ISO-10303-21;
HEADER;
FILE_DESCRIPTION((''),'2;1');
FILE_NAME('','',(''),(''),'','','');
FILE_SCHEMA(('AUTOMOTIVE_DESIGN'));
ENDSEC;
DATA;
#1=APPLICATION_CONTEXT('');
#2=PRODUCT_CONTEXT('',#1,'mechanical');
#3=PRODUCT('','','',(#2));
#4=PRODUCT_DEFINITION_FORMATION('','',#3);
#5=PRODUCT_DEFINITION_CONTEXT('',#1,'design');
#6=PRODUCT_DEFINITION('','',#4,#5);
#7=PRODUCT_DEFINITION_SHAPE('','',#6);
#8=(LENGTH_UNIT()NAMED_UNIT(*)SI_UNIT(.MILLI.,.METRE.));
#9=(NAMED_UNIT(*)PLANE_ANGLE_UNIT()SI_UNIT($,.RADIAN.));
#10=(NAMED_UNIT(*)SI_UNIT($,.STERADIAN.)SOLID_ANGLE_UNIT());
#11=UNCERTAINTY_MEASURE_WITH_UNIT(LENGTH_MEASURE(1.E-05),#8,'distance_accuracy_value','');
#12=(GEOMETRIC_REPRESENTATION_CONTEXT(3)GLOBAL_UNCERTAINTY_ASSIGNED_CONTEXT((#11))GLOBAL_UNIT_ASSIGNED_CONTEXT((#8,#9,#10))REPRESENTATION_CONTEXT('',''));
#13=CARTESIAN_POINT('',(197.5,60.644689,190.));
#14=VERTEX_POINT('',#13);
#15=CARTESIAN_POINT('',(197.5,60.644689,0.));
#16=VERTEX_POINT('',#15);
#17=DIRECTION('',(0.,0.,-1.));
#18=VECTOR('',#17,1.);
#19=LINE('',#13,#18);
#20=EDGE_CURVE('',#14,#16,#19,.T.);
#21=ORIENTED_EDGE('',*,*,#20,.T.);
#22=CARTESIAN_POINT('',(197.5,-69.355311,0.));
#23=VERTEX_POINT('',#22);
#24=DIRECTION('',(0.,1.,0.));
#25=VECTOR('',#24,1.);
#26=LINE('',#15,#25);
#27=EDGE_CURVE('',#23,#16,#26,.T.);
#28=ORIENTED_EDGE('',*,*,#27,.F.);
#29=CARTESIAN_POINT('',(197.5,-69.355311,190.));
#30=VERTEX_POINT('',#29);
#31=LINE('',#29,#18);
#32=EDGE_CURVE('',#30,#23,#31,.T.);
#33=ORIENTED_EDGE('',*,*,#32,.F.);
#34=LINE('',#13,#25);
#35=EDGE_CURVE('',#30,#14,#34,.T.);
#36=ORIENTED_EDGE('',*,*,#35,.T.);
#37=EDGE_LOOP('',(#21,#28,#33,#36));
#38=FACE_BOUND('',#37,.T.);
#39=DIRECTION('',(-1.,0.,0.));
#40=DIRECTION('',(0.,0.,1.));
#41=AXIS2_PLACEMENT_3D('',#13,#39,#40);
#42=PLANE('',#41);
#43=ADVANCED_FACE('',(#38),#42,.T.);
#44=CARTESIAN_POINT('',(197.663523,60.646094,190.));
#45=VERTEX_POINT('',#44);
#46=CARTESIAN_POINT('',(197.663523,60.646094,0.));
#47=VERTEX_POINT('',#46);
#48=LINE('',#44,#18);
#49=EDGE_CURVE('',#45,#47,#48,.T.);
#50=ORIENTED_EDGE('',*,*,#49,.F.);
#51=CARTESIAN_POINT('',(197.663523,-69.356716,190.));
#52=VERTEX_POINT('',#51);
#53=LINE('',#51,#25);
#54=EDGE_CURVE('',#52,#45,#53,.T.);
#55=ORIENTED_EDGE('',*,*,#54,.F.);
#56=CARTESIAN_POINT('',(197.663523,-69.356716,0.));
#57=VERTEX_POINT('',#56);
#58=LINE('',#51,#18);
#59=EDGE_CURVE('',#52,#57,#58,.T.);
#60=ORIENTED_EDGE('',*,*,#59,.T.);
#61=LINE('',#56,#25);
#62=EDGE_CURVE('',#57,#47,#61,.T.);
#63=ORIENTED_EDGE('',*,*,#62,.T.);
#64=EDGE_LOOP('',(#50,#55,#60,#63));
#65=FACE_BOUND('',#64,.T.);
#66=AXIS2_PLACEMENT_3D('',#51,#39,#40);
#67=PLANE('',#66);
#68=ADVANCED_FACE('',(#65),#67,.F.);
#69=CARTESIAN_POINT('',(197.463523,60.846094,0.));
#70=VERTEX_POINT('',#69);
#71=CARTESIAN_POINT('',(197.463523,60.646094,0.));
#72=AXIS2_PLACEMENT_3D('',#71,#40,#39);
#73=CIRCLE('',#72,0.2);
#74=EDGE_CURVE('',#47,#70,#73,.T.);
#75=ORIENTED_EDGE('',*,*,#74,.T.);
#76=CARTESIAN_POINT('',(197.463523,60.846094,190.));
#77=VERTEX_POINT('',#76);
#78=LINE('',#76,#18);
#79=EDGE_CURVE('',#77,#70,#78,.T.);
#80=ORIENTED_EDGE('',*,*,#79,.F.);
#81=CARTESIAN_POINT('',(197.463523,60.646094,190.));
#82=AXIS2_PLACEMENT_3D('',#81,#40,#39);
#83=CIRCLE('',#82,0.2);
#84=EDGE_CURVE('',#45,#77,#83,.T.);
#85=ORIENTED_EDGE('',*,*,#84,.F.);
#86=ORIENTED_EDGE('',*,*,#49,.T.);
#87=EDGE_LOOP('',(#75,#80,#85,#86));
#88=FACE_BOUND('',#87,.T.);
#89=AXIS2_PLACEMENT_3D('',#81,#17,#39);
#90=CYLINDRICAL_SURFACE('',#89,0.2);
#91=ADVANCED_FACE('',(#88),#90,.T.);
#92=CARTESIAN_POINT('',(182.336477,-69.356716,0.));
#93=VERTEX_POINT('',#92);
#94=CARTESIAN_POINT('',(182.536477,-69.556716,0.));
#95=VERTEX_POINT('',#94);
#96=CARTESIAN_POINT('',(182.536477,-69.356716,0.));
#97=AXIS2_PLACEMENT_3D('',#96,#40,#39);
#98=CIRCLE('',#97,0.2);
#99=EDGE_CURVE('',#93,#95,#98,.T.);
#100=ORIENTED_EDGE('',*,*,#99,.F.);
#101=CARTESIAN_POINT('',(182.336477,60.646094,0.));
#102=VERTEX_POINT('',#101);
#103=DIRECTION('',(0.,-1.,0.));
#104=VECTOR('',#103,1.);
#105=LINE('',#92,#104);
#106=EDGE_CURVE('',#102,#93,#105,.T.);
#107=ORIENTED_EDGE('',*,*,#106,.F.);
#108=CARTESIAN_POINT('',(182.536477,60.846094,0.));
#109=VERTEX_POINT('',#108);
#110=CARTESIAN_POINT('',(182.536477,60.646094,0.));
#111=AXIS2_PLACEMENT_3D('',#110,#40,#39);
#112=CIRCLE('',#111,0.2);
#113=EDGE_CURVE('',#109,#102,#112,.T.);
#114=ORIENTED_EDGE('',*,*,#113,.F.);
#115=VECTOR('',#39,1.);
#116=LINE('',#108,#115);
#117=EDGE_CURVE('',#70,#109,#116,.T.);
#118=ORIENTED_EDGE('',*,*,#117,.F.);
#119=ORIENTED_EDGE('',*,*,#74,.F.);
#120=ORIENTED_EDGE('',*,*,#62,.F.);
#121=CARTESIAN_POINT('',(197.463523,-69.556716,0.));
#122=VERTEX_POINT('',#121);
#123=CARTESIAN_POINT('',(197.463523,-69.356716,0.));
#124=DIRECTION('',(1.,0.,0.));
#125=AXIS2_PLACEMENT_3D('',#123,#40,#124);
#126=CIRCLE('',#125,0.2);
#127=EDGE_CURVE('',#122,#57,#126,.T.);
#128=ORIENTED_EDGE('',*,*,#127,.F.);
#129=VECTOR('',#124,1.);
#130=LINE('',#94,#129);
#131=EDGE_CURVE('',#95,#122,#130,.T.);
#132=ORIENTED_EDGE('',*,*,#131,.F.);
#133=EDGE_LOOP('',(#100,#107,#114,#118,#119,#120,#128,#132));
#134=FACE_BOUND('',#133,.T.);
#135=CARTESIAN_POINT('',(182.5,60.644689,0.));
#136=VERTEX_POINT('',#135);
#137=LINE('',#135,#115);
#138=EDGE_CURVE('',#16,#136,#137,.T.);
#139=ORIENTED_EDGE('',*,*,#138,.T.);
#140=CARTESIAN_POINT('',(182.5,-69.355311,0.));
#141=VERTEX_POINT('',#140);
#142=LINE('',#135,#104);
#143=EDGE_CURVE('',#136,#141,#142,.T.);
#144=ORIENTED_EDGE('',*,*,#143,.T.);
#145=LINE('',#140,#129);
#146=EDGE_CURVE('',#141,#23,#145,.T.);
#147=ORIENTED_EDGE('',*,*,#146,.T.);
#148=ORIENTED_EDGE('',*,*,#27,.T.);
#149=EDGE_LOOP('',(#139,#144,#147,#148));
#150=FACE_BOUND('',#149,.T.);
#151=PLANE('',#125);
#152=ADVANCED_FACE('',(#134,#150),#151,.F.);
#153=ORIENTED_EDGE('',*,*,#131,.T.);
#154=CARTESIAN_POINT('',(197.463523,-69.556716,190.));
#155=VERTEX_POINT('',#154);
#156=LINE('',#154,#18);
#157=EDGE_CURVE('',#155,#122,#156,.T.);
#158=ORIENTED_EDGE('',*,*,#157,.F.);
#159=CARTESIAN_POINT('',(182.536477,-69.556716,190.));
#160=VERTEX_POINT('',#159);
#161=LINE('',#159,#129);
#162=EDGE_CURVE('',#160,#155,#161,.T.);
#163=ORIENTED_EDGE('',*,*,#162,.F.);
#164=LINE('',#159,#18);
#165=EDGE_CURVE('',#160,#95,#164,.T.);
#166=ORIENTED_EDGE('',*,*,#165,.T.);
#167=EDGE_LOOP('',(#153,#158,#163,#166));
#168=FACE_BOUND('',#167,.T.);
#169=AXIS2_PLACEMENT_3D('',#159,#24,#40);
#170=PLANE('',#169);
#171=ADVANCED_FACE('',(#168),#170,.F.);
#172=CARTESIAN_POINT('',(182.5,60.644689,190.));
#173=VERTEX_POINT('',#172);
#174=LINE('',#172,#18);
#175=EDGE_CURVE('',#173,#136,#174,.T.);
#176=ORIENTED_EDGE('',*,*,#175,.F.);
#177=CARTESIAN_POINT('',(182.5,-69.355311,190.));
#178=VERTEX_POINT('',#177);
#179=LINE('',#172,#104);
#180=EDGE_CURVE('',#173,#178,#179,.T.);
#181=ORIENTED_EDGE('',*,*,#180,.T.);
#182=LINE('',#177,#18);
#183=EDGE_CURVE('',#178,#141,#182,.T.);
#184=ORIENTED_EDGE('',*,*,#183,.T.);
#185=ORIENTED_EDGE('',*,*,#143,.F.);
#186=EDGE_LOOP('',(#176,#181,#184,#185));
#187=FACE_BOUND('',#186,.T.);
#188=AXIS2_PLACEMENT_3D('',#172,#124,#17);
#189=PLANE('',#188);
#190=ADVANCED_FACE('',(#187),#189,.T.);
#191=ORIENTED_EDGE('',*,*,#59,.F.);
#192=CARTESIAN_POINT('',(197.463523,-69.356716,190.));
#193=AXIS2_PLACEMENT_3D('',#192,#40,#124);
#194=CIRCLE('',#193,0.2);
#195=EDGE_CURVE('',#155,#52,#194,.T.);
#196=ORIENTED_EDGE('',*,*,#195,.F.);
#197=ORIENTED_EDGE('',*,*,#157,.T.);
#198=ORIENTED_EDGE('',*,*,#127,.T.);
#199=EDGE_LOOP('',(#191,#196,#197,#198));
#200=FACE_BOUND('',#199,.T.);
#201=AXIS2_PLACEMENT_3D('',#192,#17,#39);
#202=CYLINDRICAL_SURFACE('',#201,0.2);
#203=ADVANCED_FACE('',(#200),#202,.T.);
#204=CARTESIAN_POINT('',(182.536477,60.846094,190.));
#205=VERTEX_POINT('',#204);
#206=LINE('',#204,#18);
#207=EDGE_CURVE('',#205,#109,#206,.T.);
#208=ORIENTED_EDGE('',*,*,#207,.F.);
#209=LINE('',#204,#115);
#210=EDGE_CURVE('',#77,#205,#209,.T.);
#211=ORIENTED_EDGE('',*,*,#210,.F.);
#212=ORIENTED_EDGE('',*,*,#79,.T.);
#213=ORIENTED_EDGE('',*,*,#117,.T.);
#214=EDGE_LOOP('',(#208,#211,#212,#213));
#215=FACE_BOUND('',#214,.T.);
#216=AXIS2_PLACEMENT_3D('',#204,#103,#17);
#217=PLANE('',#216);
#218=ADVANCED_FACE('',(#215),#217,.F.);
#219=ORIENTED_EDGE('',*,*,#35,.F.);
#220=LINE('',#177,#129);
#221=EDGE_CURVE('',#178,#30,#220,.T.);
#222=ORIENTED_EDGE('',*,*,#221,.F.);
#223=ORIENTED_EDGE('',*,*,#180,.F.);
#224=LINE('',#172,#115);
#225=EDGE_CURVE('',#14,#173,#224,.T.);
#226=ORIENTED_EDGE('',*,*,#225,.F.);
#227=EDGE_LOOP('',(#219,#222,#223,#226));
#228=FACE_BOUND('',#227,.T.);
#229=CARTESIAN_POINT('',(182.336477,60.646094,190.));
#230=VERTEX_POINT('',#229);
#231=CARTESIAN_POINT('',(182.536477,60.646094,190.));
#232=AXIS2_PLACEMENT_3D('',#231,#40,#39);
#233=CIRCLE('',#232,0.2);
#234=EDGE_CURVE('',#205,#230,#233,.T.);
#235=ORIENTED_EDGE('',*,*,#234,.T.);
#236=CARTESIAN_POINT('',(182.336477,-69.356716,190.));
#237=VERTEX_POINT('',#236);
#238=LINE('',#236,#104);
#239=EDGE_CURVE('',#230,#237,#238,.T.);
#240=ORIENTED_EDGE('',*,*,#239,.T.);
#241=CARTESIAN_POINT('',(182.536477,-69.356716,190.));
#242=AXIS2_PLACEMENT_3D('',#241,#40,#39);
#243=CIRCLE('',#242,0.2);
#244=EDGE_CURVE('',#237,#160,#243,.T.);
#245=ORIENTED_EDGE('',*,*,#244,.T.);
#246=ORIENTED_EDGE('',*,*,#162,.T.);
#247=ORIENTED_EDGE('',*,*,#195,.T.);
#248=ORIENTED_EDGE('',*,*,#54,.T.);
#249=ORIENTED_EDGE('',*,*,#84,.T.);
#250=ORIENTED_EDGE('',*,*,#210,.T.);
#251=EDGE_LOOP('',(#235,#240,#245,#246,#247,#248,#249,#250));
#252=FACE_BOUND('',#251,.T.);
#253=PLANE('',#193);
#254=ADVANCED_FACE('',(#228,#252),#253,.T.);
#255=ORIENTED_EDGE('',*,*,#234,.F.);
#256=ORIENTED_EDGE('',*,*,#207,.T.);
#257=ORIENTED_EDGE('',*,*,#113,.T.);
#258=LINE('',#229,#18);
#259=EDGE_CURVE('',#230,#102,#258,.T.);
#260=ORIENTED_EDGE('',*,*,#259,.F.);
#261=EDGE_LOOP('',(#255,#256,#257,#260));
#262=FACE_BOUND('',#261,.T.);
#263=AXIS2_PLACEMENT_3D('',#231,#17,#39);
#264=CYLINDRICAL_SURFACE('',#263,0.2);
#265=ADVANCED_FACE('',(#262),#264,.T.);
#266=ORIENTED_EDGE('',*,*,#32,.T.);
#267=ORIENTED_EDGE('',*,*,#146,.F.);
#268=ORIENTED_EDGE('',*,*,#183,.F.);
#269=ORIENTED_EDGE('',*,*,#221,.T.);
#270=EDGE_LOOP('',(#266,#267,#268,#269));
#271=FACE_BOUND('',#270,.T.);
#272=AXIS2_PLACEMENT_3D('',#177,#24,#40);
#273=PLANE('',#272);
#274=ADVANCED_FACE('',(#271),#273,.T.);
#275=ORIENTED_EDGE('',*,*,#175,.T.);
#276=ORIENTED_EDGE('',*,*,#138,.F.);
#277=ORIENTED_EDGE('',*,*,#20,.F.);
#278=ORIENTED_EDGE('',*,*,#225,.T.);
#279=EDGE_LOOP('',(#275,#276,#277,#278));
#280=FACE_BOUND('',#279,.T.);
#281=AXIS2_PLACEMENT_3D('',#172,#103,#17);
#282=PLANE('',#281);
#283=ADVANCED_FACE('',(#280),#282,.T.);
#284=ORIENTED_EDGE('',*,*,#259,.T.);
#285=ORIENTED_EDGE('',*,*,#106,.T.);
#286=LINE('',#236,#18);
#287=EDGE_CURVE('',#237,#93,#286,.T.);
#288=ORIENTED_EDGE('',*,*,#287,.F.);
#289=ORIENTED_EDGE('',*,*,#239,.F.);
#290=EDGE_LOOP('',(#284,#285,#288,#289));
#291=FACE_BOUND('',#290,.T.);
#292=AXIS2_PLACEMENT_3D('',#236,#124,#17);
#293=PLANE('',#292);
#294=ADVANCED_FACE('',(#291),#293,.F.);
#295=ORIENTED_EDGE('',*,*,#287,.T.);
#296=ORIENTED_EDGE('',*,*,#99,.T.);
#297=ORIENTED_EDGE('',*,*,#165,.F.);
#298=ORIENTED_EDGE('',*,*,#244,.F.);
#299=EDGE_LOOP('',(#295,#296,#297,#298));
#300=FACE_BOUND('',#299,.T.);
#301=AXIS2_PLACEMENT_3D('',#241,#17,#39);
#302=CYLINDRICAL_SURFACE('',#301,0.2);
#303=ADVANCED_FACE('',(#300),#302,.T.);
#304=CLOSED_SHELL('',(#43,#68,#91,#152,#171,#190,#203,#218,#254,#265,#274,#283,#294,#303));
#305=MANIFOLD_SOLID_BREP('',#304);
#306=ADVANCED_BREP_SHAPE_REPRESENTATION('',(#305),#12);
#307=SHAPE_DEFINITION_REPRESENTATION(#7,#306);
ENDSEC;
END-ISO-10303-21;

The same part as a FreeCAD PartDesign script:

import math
import FreeCAD as App
import Part
import Sketcher

V = App.Vector


def add_polygon(sketch, points):
    """Adds a closed chain of lines whose ends are joined by coincident constraints."""
    first, n = sketch.GeometryCount, len(points)
    for a, b in zip(points, points[1:] + points[:1]):
        sketch.addGeometry(Part.LineSegment(App.Vector(*a, 0), App.Vector(*b, 0)), False)
    for i in range(n):
        sketch.addConstraint(Sketcher.Constraint("Coincident", first + i, 2, first + (i + 1) % n, 1))

doc = App.newDocument("Part")
body = doc.addObject("PartDesign::Body", "Body")

# Sketch on XY plane
sketch1 = doc.addObject("Sketcher::SketchObject", "Sketch")
body.addObject(sketch1)
sketch1.AttachmentSupport = (doc.XY_Plane, [""])
sketch1.MapMode = "FlatFace"
sketch1.addGeometry(Part.LineSegment(V(182.536477, -69.556716, 0), V(197.463523, -69.556716, 0)), False)  # 0
sketch1.addGeometry(Part.ArcOfCircle(Part.Circle(V(197.463523, -69.356716, 0), V(0, 0, 1), 0.2), math.radians(-90), math.radians(0)), False)  # 1
sketch1.addGeometry(Part.LineSegment(V(197.663523, -69.356716, 0), V(197.663523, 60.646094, 0)), False)  # 2
sketch1.addGeometry(Part.ArcOfCircle(Part.Circle(V(197.463523, 60.646094, 0), V(0, 0, 1), 0.2), math.radians(0), math.radians(90)), False)  # 3
sketch1.addGeometry(Part.LineSegment(V(197.463523, 60.846094, 0), V(182.536477, 60.846094, 0)), False)  # 4
sketch1.addGeometry(Part.ArcOfCircle(Part.Circle(V(182.536477, 60.646094, 0), V(0, 0, 1), 0.2), math.radians(90), math.radians(180)), False)  # 5
sketch1.addGeometry(Part.LineSegment(V(182.336477, 60.646094, 0), V(182.336477, -69.356716, 0)), False)  # 6
sketch1.addGeometry(Part.ArcOfCircle(Part.Circle(V(182.536477, -69.356716, 0), V(0, 0, 1), 0.2), math.radians(-180), math.radians(-90)), False)  # 7
add_polygon(sketch1, [(197.5, -69.355311), (182.5, -69.355311), (182.5, 60.644689), (197.5, 60.644689)])  # lines 8-11
sketch1.addConstraint(Sketcher.Constraint("Tangent", 0, 2, 1, 1))
sketch1.addConstraint(Sketcher.Constraint("Tangent", 1, 2, 2, 1))
sketch1.addConstraint(Sketcher.Constraint("Tangent", 2, 2, 3, 1))
sketch1.addConstraint(Sketcher.Constraint("Tangent", 3, 2, 4, 1))
sketch1.addConstraint(Sketcher.Constraint("Tangent", 4, 2, 5, 1))
sketch1.addConstraint(Sketcher.Constraint("Tangent", 5, 2, 6, 1))
sketch1.addConstraint(Sketcher.Constraint("Tangent", 6, 2, 7, 1))
sketch1.addConstraint(Sketcher.Constraint("Tangent", 7, 2, 0, 1))
sketch1.addConstraint(Sketcher.Constraint("Horizontal", 0))
sketch1.addConstraint(Sketcher.Constraint("Vertical", 2))
sketch1.addConstraint(Sketcher.Constraint("Horizontal", 4))
sketch1.addConstraint(Sketcher.Constraint("Vertical", 6))
sketch1.addConstraint(Sketcher.Constraint("Horizontal", 8))
sketch1.addConstraint(Sketcher.Constraint("Vertical", 9))
sketch1.addConstraint(Sketcher.Constraint("Horizontal", 10))
sketch1.addConstraint(Sketcher.Constraint("Vertical", 11))
sketch1.addConstraint(Sketcher.Constraint("Equal", 1, 3))
sketch1.addConstraint(Sketcher.Constraint("Equal", 3, 5))
sketch1.addConstraint(Sketcher.Constraint("Equal", 5, 7))
sketch1.addConstraint(Sketcher.Constraint("Radius", 1, 0.2))
sketch1.addConstraint(Sketcher.Constraint("DistanceX", 8, 2, 8, 1, 15.0))
sketch1.addConstraint(Sketcher.Constraint("DistanceY", 9, 1, 9, 2, 130.0))
sketch1.addConstraint(Sketcher.Constraint("DistanceX", -1, 1, 8, 2, 182.5))
sketch1.addConstraint(Sketcher.Constraint("DistanceY", 2, 1, 2, 2, 130.00281))
sketch1.addConstraint(Sketcher.Constraint("DistanceX", 0, 1, 0, 2, 14.927046))
sketch1.addConstraint(Sketcher.Constraint("DistanceY", 8, 2, -1, 1, 69.355311))
sketch1.addConstraint(Sketcher.Constraint("DistanceX", -1, 1, 1, 3, 197.463523))
sketch1.addConstraint(Sketcher.Constraint("DistanceY", 1, 3, -1, 1, 69.356716))
pad1 = doc.addObject("PartDesign::Pad", "Pad")
body.addObject(pad1)
pad1.Profile = sketch1
pad1.Length = 190

doc.recompute()
